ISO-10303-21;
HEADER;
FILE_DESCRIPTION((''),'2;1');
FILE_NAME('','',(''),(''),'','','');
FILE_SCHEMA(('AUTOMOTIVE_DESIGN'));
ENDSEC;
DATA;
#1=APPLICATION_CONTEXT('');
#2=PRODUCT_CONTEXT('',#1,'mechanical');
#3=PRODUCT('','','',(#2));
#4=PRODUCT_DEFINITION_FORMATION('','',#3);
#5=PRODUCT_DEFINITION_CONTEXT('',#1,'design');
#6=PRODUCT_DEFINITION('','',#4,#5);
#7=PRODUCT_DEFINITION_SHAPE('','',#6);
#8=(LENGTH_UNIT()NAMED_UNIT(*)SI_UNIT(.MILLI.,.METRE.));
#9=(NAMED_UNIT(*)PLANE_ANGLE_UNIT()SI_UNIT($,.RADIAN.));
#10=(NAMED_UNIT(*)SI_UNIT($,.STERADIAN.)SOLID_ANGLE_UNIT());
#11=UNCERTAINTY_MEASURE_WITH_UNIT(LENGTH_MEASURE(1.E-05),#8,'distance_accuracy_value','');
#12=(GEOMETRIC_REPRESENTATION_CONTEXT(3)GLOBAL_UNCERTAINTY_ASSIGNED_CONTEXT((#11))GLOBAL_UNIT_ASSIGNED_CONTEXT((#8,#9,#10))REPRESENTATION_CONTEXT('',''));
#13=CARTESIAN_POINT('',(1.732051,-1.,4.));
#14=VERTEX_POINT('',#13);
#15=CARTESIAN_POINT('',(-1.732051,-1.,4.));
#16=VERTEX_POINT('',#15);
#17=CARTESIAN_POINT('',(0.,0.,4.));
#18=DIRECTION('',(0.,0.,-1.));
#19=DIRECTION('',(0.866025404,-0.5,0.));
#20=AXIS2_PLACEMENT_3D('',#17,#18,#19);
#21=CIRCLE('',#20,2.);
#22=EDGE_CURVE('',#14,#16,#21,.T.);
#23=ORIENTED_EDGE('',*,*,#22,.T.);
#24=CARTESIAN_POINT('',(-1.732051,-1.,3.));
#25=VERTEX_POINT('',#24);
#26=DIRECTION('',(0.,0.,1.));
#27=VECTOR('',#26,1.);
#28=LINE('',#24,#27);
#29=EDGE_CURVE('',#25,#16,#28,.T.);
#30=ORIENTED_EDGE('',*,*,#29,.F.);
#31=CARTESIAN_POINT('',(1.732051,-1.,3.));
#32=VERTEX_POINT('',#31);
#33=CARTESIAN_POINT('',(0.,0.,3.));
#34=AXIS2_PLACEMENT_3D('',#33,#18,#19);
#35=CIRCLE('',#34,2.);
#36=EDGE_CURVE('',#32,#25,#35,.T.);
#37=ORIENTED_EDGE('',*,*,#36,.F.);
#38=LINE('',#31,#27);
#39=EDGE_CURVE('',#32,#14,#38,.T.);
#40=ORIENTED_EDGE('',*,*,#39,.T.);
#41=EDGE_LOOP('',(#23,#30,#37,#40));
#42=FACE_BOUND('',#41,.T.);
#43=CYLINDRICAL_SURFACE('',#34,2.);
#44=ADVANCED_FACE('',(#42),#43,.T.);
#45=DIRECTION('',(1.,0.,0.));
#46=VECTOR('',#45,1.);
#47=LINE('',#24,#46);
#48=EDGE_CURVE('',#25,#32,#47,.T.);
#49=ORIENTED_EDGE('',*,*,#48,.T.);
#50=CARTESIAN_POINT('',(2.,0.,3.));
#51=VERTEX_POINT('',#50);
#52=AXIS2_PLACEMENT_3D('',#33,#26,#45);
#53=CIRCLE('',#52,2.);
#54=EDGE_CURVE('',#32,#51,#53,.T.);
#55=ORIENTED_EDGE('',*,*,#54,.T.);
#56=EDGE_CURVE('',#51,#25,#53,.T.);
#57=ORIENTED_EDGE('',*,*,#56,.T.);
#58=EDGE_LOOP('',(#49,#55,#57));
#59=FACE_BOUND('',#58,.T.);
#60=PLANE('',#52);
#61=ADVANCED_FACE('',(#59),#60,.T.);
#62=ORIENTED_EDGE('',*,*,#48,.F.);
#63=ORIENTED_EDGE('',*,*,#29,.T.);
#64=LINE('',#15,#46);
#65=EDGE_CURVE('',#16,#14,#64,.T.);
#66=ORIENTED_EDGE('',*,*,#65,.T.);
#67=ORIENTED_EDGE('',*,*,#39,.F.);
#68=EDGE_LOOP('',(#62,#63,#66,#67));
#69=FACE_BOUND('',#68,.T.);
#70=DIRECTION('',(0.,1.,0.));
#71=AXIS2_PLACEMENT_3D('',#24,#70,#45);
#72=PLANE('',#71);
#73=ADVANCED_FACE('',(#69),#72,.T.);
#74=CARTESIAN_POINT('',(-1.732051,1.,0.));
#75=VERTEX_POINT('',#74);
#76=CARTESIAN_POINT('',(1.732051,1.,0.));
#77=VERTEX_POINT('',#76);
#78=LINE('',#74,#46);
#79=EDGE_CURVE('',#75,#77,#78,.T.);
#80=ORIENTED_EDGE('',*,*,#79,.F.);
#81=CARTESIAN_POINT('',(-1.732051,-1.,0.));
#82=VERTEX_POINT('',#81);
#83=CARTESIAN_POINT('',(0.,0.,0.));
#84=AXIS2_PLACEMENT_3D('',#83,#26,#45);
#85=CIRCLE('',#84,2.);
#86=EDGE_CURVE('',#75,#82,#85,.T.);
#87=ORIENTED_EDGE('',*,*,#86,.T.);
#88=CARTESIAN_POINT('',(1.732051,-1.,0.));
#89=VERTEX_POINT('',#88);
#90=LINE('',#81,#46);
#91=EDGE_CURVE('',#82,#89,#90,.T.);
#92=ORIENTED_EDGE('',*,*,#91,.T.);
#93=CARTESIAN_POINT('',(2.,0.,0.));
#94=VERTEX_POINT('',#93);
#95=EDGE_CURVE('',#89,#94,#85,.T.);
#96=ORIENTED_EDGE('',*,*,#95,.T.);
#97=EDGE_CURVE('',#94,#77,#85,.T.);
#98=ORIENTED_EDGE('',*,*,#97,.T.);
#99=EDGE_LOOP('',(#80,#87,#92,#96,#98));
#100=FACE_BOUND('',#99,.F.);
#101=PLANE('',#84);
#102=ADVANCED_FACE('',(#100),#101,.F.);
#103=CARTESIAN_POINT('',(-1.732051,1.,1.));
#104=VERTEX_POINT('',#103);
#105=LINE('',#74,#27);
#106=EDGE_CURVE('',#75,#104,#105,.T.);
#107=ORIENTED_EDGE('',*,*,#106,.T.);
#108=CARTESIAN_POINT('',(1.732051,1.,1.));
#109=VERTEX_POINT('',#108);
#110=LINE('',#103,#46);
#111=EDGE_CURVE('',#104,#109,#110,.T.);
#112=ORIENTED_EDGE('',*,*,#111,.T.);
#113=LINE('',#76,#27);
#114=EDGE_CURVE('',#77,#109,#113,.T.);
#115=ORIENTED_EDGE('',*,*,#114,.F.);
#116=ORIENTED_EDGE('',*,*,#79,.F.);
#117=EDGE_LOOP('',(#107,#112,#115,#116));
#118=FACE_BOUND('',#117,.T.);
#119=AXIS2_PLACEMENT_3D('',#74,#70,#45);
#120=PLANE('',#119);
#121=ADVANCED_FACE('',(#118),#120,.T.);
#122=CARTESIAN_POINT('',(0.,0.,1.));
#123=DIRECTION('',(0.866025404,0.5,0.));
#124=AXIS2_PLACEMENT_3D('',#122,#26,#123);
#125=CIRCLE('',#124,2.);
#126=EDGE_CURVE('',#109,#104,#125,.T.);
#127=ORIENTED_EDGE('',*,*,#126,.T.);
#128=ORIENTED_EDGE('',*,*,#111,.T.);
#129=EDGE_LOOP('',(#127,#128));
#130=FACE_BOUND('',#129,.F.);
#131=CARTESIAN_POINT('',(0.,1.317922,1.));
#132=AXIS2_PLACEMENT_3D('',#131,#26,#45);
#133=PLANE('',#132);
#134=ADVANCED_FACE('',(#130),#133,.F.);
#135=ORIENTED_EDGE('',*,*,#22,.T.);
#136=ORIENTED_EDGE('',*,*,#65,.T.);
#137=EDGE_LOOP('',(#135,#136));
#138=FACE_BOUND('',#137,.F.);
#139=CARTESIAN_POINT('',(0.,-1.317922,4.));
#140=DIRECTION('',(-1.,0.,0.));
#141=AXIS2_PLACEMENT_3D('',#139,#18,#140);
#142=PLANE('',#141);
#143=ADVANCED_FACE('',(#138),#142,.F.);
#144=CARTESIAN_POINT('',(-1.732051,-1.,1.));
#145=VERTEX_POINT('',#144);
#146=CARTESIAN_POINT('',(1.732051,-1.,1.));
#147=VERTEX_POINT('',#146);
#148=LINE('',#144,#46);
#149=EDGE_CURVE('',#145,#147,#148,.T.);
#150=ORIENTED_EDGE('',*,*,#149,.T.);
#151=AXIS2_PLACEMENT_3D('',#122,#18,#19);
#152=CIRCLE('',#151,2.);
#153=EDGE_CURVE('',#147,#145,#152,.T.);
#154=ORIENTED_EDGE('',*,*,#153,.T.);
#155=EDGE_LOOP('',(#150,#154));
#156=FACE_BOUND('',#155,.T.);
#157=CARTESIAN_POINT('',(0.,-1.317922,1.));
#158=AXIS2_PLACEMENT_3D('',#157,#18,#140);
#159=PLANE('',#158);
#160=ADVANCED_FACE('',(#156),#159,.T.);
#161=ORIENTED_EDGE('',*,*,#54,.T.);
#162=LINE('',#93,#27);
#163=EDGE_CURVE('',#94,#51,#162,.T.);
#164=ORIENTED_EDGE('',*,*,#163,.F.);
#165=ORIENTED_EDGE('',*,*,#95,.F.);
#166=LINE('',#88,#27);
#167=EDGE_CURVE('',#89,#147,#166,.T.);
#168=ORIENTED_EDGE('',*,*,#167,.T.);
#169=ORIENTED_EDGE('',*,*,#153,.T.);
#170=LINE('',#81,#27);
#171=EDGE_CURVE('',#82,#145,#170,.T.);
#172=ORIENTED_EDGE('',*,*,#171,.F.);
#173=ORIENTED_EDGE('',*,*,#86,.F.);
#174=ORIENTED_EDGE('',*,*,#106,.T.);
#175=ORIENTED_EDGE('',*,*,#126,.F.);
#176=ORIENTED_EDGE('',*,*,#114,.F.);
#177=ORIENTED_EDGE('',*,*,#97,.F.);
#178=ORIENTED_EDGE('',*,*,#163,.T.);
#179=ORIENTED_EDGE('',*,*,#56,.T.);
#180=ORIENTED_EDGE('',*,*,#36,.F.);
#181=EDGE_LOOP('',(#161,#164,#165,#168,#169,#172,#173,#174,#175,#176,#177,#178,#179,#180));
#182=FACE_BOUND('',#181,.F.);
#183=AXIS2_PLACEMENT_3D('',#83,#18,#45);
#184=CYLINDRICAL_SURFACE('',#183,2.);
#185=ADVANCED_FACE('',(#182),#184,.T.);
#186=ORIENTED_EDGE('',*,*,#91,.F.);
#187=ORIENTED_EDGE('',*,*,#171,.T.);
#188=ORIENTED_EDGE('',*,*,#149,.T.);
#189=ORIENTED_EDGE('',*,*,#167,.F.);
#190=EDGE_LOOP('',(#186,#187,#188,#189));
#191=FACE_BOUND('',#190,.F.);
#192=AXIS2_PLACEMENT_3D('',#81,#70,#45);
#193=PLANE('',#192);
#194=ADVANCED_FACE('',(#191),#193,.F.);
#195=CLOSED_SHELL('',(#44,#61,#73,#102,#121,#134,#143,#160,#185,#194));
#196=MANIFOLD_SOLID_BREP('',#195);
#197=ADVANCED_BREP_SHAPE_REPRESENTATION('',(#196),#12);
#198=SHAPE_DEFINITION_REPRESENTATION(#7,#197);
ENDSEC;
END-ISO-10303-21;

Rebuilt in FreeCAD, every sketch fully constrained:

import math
import FreeCAD as App
import Part
import Sketcher
from FreeCAD import Vector

doc = App.newDocument("Part")
params = doc.addObject("Spreadsheet::Sheet", "Params")
for row, (alias, value) in enumerate([
    ("sketch1_diameter", "4 mm"),
    ("pad1_length", "3 mm"),
    ("sketch2_radius", "2 mm"),
    ("pad2_length", "1 mm"),
    ("sketch3_radius", "2 mm"),
    ("pocket1_length", "1 mm"),
    ("sketch4_radius", "2 mm"),
    ("pocket2_length", "1 mm"),
], start=1):
    params.set(f"A{row}", alias)
    params.set(f"B{row}", "=" + value)
    params.setAlias(f"B{row}", alias)

body = doc.addObject("PartDesign::Body", "Body")

# Sketch on XY plane
sketch1 = body.newObject("Sketcher::SketchObject", "Sketch")
sketch1.AttachmentSupport = (doc.getObject("XY_Plane"), [""])
sketch1.MapMode = "FlatFace"
sketch1.addGeometry(Part.Circle(Vector(0, 0, 0), Vector(0, 0, 1), 2), False)
sketch1.addConstraint([
    Sketcher.Constraint("Coincident", 0, 3, -1, 1),
    Sketcher.Constraint("Diameter", 0, 4.0),
])
sketch1.setExpression("Constraints[1]", "Params.sketch1_diameter")
pad1 = body.newObject("PartDesign::Pad", "Pad")
pad1.Profile = sketch1
pad1.setExpression("Length", "Params.pad1_length")

# Sketch on XY plane
sketch2 = body.newObject("Sketcher::SketchObject", "Sketch001")
sketch2.AttachmentSupport = (doc.getObject("XY_Plane"), [""])
sketch2.MapMode = "FlatFace"
sketch2.AttachmentOffset = App.Placement(Vector(0, 0, 3), App.Rotation())
sketch2.addGeometry([
    Part.LineSegment(Vector(1.7, -1, 0), Vector(-1.7, -1, 0)),
    Part.ArcOfCircle(Part.Circle(Vector(0, 0, 0), Vector(0, 0, 1), 2), math.radians(-150), math.radians(-30)),
], False)
sketch2.addConstraint([
    Sketcher.Constraint("Coincident", 0, 1, 1, 2),
    Sketcher.Constraint("Coincident", 1, 1, 0, 2),
    Sketcher.Constraint("Horizontal", 0),
    Sketcher.Constraint("Coincident", 1, 3, -1, 1),
    Sketcher.Constraint("Radius", 1, 2.0),
    Sketcher.Constraint("DistanceY", 0, 1, -1, 1, 1.0),
])
sketch2.setExpression("Constraints[4]", "Params.sketch2_radius")
pad2 = body.newObject("PartDesign::Pad", "Pad001")
pad2.Profile = sketch2
pad2.setExpression("Length", "Params.pad2_length")

# Sketch on XY plane
sketch3 = body.newObject("Sketcher::SketchObject", "Sketch002")
sketch3.AttachmentSupport = (doc.getObject("XY_Plane"), [""])
sketch3.MapMode = "FlatFace"
sketch3.addGeometry([
    Part.LineSegment(Vector(1.7, 1, 0), Vector(-1.7, 1, 0)),
    Part.ArcOfCircle(Part.Circle(Vector(0, 0, 0), Vector(0, 0, 1), 2), math.radians(30), math.radians(150)),
], False)
sketch3.addConstraint([
    Sketcher.Constraint("Coincident", 0, 1, 1, 1),
    Sketcher.Constraint("Coincident", 1, 2, 0, 2),
    Sketcher.Constraint("Horizontal", 0),
    Sketcher.Constraint("Coincident", 1, 3, -1, 1),
    Sketcher.Constraint("Radius", 1, 2.0),
    Sketcher.Constraint("DistanceY", -1, 1, 0, 1, 1.0),
])
sketch3.setExpression("Constraints[4]", "Params.sketch3_radius")
pocket1 = body.newObject("PartDesign::Pocket", "Pocket")
pocket1.Profile = sketch3
pocket1.setExpression("Length", "Params.pocket1_length")
pocket1.Reversed = True

# Sketch on XY plane
sketch4 = body.newObject("Sketcher::SketchObject", "Sketch003")
sketch4.AttachmentSupport = (doc.getObject("XY_Plane"), [""])
sketch4.MapMode = "FlatFace"
sketch4.addGeometry([
    Part.LineSegment(Vector(-1.7, -1, 0), Vector(1.7, -1, 0)),
    Part.ArcOfCircle(Part.Circle(Vector(0, 0, 0), Vector(0, 0, 1), 2), math.radians(-150), math.radians(-30)),
], False)
sketch4.addConstraint([
    Sketcher.Constraint("Coincident", 0, 1, 1, 1),
    Sketcher.Constraint("Coincident", 1, 2, 0, 2),
    Sketcher.Constraint("Horizontal", 0),
    Sketcher.Constraint("Coincident", 1, 3, -1, 1),
    Sketcher.Constraint("Radius", 1, 2.0),
    Sketcher.Constraint("DistanceY", 0, 1, -1, 1, 1.0),
])
sketch4.setExpression("Constraints[4]", "Params.sketch4_radius")
pocket2 = body.newObject("PartDesign::Pocket", "Pocket001")
pocket2.Profile = sketch4
pocket2.setExpression("Length", "Params.pocket2_length")
pocket2.Reversed = True

doc.recompute()
